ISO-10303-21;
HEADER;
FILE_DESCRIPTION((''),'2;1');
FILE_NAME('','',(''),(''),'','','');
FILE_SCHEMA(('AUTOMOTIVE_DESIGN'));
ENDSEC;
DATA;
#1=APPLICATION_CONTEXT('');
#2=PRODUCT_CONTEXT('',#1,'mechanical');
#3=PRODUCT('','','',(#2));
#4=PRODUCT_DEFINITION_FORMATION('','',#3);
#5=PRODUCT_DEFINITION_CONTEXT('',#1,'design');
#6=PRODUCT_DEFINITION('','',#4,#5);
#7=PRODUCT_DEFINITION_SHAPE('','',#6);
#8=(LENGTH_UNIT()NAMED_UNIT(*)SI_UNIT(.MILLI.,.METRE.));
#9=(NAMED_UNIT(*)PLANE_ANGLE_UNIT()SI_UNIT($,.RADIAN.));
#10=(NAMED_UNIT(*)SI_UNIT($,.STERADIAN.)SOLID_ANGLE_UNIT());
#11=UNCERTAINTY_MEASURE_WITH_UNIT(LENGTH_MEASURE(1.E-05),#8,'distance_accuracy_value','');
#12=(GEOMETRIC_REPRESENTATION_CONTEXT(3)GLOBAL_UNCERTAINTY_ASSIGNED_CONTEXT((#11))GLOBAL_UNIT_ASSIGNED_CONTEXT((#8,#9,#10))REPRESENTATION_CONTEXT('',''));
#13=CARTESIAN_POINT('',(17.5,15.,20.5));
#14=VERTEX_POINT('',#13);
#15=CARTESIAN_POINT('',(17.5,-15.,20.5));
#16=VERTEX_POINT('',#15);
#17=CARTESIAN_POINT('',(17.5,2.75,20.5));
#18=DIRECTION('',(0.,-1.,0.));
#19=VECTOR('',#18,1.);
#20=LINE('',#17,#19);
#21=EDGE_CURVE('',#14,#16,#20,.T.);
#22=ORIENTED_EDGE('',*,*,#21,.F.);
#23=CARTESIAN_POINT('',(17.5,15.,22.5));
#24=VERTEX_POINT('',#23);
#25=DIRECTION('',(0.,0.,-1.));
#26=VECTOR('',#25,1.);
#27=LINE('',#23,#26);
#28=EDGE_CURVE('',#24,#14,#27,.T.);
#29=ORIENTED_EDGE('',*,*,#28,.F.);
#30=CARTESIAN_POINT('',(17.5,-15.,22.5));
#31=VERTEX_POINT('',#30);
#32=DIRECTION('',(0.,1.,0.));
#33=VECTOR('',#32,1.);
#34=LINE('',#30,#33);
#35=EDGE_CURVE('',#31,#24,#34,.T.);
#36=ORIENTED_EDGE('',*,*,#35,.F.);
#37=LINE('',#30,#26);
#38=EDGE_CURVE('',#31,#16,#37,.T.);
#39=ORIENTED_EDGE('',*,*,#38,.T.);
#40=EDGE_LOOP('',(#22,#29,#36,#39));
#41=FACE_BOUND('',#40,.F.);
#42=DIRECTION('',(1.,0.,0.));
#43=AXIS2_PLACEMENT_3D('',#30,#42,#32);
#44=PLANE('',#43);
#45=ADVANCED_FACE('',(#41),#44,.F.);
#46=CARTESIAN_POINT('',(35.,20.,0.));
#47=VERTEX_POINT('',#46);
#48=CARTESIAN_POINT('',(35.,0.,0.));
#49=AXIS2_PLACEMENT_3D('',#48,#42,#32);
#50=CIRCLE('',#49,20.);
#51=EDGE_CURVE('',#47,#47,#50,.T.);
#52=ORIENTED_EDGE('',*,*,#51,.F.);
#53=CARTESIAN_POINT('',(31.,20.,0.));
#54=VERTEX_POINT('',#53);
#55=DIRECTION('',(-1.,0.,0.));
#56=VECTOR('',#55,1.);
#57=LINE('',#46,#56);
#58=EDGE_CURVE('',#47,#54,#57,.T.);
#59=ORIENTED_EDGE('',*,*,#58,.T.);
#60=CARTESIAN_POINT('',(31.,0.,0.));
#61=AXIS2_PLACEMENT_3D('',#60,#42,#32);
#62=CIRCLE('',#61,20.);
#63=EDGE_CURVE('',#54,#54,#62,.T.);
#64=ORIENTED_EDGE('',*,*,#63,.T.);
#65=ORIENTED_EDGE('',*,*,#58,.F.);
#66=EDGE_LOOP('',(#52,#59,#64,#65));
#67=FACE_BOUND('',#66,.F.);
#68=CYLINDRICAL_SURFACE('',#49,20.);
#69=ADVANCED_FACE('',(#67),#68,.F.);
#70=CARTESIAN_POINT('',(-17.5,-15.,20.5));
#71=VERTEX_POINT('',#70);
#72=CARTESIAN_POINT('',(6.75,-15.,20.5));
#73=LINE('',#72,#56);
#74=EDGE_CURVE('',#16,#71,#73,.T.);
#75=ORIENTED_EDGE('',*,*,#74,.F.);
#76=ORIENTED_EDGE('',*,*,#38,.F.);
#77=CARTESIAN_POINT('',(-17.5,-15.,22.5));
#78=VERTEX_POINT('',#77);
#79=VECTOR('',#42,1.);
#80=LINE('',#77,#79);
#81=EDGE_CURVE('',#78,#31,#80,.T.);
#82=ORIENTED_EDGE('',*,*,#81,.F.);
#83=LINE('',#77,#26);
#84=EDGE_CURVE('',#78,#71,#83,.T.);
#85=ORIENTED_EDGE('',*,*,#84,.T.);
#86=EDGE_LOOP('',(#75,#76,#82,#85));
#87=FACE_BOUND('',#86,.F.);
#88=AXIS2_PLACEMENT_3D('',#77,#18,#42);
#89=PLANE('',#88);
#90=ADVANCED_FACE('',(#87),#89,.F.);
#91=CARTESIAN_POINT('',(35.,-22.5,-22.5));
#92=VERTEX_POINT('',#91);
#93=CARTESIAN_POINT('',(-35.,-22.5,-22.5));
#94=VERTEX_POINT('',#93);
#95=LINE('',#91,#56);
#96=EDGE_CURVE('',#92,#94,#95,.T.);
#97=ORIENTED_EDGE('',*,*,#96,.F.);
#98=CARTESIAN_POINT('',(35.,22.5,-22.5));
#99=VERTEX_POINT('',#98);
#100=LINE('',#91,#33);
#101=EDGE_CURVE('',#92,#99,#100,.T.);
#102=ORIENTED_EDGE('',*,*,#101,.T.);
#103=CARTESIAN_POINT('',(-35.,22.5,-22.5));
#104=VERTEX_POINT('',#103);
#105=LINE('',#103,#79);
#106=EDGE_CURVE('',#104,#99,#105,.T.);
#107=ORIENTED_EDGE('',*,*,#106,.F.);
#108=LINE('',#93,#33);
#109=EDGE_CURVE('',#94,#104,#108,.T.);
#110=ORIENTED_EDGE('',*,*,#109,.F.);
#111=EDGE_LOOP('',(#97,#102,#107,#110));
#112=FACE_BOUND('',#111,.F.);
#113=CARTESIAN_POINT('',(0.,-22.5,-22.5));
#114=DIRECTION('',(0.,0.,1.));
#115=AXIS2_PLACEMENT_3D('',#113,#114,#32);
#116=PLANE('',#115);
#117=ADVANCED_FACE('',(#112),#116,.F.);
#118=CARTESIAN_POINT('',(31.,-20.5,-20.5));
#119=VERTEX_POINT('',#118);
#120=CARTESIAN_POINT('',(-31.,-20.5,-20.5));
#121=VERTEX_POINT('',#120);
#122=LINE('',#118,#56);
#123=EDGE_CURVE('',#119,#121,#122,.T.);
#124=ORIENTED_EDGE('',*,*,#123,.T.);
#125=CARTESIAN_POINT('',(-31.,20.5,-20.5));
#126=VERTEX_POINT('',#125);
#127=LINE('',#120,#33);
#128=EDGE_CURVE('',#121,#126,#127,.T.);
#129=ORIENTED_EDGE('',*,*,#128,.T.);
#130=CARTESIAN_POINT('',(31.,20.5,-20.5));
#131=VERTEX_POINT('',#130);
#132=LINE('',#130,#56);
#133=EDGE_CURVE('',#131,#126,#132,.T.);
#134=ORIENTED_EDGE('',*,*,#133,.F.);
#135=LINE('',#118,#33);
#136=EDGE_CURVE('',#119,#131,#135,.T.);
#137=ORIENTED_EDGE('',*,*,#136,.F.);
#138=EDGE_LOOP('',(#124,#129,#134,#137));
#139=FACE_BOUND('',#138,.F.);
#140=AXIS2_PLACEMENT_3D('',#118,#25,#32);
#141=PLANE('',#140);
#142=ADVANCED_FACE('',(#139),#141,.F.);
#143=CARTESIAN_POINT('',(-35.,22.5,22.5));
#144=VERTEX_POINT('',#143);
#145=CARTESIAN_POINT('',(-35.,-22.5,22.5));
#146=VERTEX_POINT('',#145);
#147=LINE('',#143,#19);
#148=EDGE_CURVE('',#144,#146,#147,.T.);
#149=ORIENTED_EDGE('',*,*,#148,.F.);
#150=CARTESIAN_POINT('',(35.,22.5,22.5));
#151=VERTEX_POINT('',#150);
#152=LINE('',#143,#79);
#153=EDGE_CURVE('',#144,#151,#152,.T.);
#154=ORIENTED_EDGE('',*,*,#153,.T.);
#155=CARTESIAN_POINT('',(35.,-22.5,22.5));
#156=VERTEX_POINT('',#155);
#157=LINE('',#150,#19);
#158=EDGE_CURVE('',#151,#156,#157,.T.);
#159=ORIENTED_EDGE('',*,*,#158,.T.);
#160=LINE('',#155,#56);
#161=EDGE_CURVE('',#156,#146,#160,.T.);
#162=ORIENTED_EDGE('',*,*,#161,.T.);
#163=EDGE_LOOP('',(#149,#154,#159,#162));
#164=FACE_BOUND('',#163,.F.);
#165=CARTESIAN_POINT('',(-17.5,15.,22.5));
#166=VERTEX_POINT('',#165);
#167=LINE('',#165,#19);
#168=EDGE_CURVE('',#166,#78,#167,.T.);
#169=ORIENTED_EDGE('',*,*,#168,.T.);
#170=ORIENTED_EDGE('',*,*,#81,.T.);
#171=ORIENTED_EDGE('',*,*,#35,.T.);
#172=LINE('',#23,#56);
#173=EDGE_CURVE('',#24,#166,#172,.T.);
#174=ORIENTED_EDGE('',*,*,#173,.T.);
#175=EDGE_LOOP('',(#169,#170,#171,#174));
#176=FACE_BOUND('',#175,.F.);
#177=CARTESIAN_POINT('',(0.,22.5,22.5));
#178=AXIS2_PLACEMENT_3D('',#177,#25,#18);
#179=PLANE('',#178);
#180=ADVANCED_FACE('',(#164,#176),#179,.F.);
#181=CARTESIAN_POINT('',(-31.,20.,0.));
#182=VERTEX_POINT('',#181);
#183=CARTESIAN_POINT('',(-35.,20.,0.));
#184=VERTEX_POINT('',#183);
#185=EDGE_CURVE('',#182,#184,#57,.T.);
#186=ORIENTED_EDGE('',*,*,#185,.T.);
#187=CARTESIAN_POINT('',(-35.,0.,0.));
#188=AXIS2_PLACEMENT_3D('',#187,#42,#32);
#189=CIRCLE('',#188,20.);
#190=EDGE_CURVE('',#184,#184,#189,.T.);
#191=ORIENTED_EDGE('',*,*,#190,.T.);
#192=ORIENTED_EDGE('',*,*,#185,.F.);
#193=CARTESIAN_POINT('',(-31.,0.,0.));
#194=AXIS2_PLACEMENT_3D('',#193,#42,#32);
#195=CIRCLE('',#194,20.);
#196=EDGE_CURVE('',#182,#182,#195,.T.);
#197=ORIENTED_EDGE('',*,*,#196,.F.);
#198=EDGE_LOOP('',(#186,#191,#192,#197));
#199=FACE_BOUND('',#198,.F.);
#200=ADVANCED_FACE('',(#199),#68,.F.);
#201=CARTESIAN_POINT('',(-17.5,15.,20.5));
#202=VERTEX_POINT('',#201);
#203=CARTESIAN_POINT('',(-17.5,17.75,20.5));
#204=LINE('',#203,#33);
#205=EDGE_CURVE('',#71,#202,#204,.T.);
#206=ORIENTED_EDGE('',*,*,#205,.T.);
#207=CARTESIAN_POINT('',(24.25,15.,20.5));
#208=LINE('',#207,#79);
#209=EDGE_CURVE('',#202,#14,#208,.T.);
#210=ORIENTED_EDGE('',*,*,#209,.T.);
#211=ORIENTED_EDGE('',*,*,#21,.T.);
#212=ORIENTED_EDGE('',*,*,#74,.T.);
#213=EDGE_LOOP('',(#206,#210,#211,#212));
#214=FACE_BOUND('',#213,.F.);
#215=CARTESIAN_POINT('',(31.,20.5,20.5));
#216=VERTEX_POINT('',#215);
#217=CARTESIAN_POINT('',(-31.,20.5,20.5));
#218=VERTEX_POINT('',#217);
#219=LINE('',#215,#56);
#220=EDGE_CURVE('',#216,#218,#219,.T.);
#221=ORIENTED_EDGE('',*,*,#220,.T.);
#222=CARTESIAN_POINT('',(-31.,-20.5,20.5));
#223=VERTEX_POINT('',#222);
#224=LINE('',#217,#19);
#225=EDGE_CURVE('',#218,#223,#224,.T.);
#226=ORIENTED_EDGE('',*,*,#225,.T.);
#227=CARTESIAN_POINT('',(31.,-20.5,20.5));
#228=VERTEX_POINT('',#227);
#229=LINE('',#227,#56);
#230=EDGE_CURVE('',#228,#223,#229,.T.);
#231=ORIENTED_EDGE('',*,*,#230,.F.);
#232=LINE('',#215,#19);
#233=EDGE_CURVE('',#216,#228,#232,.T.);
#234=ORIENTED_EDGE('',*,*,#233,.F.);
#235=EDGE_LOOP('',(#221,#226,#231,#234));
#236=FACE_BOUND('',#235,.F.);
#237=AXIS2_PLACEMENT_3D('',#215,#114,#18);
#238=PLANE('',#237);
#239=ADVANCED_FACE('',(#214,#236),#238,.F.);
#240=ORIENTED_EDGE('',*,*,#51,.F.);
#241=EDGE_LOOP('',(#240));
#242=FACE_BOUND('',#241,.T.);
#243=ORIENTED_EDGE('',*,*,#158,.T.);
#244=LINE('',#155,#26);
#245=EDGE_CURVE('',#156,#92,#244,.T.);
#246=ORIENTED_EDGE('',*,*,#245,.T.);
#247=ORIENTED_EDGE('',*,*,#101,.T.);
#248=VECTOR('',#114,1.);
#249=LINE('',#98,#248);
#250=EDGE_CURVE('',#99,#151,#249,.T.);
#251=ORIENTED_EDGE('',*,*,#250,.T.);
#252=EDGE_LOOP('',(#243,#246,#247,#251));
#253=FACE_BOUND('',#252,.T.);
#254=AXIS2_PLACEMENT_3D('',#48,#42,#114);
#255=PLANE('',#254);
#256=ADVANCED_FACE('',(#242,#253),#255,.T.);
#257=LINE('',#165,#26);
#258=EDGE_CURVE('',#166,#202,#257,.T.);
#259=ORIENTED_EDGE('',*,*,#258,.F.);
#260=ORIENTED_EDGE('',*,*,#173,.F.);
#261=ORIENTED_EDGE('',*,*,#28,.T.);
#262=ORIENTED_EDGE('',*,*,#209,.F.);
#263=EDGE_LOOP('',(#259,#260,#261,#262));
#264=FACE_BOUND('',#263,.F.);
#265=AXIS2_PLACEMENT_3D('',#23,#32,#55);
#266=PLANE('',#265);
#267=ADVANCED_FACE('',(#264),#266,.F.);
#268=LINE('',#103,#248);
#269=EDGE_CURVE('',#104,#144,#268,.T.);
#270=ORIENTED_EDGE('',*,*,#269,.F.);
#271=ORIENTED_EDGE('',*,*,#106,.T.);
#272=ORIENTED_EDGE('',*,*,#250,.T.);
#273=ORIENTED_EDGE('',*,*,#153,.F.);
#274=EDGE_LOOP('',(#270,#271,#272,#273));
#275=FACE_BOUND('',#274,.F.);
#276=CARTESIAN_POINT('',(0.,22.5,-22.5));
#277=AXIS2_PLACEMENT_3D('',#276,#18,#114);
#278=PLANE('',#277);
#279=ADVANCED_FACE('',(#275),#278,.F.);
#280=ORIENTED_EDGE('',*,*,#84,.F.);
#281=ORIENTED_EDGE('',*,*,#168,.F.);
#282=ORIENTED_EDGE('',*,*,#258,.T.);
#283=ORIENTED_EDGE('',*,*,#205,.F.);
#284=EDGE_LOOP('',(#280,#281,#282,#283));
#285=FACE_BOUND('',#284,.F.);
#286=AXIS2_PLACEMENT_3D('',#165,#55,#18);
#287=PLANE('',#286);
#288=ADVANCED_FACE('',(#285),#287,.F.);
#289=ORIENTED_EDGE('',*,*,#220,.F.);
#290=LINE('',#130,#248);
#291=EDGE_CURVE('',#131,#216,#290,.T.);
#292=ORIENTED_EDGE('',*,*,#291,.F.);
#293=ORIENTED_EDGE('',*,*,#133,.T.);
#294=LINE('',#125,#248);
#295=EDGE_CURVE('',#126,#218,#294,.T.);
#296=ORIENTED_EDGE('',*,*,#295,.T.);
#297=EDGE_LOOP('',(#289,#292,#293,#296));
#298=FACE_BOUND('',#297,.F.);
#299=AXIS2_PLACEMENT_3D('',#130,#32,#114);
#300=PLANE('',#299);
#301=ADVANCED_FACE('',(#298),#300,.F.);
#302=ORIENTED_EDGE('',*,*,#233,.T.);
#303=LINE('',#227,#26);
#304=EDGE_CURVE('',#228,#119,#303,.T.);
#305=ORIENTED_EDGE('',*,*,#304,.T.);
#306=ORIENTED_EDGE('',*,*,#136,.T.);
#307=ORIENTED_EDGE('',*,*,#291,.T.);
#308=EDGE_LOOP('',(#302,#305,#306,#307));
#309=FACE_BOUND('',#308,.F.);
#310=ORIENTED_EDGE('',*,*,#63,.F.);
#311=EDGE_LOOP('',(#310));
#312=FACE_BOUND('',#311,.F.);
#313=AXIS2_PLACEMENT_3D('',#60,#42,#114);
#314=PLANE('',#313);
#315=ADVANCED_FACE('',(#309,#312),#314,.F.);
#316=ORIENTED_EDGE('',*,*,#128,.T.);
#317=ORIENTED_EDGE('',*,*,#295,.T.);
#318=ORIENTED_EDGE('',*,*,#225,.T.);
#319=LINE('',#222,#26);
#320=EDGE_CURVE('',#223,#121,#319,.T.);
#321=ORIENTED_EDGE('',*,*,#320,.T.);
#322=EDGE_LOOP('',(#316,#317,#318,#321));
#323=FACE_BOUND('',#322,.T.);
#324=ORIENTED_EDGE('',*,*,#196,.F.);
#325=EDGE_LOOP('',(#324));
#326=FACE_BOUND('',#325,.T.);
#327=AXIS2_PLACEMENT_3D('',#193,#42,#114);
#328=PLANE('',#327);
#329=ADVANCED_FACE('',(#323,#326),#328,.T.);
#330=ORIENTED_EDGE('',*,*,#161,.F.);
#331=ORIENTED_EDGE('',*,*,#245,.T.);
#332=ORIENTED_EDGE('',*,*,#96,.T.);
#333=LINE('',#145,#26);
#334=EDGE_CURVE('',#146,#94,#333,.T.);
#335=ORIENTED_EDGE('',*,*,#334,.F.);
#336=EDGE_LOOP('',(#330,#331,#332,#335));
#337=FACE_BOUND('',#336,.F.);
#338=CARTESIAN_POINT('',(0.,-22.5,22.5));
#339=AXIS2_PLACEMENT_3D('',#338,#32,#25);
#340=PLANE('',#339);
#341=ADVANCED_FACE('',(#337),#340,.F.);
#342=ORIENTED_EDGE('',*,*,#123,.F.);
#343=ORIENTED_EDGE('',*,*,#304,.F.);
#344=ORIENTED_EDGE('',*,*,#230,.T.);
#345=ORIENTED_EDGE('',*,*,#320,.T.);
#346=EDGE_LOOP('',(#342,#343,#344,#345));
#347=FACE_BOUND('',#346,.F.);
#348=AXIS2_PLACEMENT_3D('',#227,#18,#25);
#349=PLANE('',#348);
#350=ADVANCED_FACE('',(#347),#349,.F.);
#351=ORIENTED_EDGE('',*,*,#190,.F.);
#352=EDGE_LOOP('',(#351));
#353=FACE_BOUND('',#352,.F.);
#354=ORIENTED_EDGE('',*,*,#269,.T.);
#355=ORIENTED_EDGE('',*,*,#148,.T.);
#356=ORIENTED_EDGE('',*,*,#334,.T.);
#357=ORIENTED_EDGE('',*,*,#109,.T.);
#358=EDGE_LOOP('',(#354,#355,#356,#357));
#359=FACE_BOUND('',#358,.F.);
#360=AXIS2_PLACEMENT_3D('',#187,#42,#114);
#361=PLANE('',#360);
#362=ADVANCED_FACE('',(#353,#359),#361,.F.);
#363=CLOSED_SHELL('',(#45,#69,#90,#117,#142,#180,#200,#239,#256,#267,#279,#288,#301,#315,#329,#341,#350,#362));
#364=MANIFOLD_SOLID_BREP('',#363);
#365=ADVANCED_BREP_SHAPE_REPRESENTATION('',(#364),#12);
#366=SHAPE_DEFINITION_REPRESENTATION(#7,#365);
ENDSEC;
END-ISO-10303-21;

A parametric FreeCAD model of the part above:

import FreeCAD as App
import Part
import Sketcher
from FreeCAD import Vector

doc = App.newDocument("Part")
body = doc.addObject("PartDesign::Body", "Body")

# Sketch on YZ plane
sketch1 = body.newObject("Sketcher::SketchObject", "Sketch")
sketch1.AttachmentSupport = (doc.getObject("YZ_Plane"), [""])
sketch1.MapMode = "FlatFace"
sketch1.addGeometry(Part.LineSegment(Vector(-22, 22, 0), Vector(-22, -22, 0)), False)
sketch1.addGeometry(Part.LineSegment(Vector(-22, -22, 0), Vector(22, -22, 0)), False)
sketch1.addGeometry(Part.LineSegment(Vector(22, -22, 0), Vector(22, 22, 0)), False)
sketch1.addGeometry(Part.LineSegment(Vector(22, 22, 0), Vector(-22, 22, 0)), False)
sketch1.addConstraint(Sketcher.Constraint("Coincident", 0, 2, 1, 1))
sketch1.addConstraint(Sketcher.Constraint("Coincident", 1, 2, 2, 1))
sketch1.addConstraint(Sketcher.Constraint("Coincident", 2, 2, 3, 1))
sketch1.addConstraint(Sketcher.Constraint("Coincident", 3, 2, 0, 1))
sketch1.addConstraint(Sketcher.Constraint("Vertical", 0))
sketch1.addConstraint(Sketcher.Constraint("Horizontal", 1))
sketch1.addConstraint(Sketcher.Constraint("Vertical", 2))
sketch1.addConstraint(Sketcher.Constraint("Horizontal", 3))
sketch1.addConstraint(Sketcher.Constraint("Symmetric", 0, 2, 2, 2, -1, 1))
sketch1.addConstraint(Sketcher.Constraint("Equal", 3, 0))
sketch1.addConstraint(Sketcher.Constraint("DistanceX", 1, 1, 1, 2, 45.0))
pad1 = body.newObject("PartDesign::Pad", "Pad")
pad1.Profile = sketch1
pad1.Length = 70
pad1.Midplane = True

# Sketch on YZ plane
sketch2 = body.newObject("Sketcher::SketchObject", "Sketch001")
sketch2.AttachmentSupport = (doc.getObject("YZ_Plane"), [""])
sketch2.MapMode = "FlatFace"
sketch2.AttachmentOffset = App.Placement(Vector(0, 0, 35), App.Rotation())
sketch2.addGeometry(Part.Circle(Vector(0, 0, 0), Vector(0, 0, 1), 20), False)
sketch2.addConstraint(Sketcher.Constraint("Coincident", 0, 3, -1, 1))
sketch2.addConstraint(Sketcher.Constraint("Diameter", 0, 40.0))
pocket1 = body.newObject("PartDesign::Pocket", "Pocket")
pocket1.Profile = sketch2
pocket1.Type = "UpToFirst"

# Sketch on YZ plane
sketch3 = body.newObject("Sketcher::SketchObject", "Sketch002")
sketch3.AttachmentSupport = (doc.getObject("YZ_Plane"), [""])
sketch3.MapMode = "FlatFace"
sketch3.AttachmentOffset = App.Placement(Vector(0, 0, 31), App.Rotation())
sketch3.addGeometry(Part.LineSegment(Vector(-20, 20, 0), Vector(-20, -20, 0)), False)
sketch3.addGeometry(Part.LineSegment(Vector(-20, -20, 0), Vector(20, -20, 0)), False)
sketch3.addGeometry(Part.LineSegment(Vector(20, -20, 0), Vector(20, 20, 0)), False)
sketch3.addGeometry(Part.LineSegment(Vector(20, 20, 0), Vector(-20, 20, 0)), False)
sketch3.addConstraint(Sketcher.Constraint("Coincident", 0, 2, 1, 1))
sketch3.addConstraint(Sketcher.Constraint("Coincident", 1, 2, 2, 1))
sketch3.addConstraint(Sketcher.Constraint("Coincident", 2, 2, 3, 1))
sketch3.addConstraint(Sketcher.Constraint("Coincident", 3, 2, 0, 1))
sketch3.addConstraint(Sketcher.Constraint("Vertical", 0))
sketch3.addConstraint(Sketcher.Constraint("Horizontal", 1))
sketch3.addConstraint(Sketcher.Constraint("Vertical", 2))
sketch3.addConstraint(Sketcher.Constraint("Horizontal", 3))
sketch3.addConstraint(Sketcher.Constraint("Symmetric", 0, 2, 2, 2, -1, 1))
sketch3.addConstraint(Sketcher.Constraint("Equal", 3, 0))
sketch3.addConstraint(Sketcher.Constraint("DistanceX", 1, 1, 1, 2, 41.0))
pocket2 = body.newObject("PartDesign::Pocket", "Pocket001")
pocket2.Profile = sketch3
pocket2.Length = 62

# Sketch on XY plane
sketch4 = body.newObject("Sketcher::SketchObject", "Sketch003")
sketch4.AttachmentSupport = (doc.getObject("XY_Plane"), [""])
sketch4.MapMode = "FlatFace"
sketch4.AttachmentOffset = App.Placement(Vector(0, 0, 22.5), App.Rotation())
sketch4.addGeometry(Part.LineSegment(Vector(18, 15, 0), Vector(-18, 15, 0)), False)
sketch4.addGeometry(Part.LineSegment(Vector(-18, 15, 0), Vector(-18, -15, 0)), False)
sketch4.addGeometry(Part.LineSegment(Vector(-18, -15, 0), Vector(18, -15, 0)), False)
sketch4.addGeometry(Part.LineSegment(Vector(18, -15, 0), Vector(18, 15, 0)), False)
sketch4.addConstraint(Sketcher.Constraint("Coincident", 0, 2, 1, 1))
sketch4.addConstraint(Sketcher.Constraint("Coincident", 1, 2, 2, 1))
sketch4.addConstraint(Sketcher.Constraint("Coincident", 2, 2, 3, 1))
sketch4.addConstraint(Sketcher.Constraint("Coincident", 3, 2, 0, 1))
sketch4.addConstraint(Sketcher.Constraint("Horizontal", 0))
sketch4.addConstraint(Sketcher.Constraint("Vertical", 1))
sketch4.addConstraint(Sketcher.Constraint("Horizontal", 2))
sketch4.addConstraint(Sketcher.Constraint("Vertical", 3))
sketch4.addConstraint(Sketcher.Constraint("Symmetric", 0, 2, 2, 2, -1, 1))
sketch4.addConstraint(Sketcher.Constraint("DistanceX", 0, 2, 0, 1, 35.0))
sketch4.addConstraint(Sketcher.Constraint("DistanceY", 1, 2, 1, 1, 30.0))
pocket3 = body.newObject("PartDesign::Pocket", "Pocket002")
pocket3.Profile = sketch4
pocket3.Type = "UpToFirst"

doc.recompute()
